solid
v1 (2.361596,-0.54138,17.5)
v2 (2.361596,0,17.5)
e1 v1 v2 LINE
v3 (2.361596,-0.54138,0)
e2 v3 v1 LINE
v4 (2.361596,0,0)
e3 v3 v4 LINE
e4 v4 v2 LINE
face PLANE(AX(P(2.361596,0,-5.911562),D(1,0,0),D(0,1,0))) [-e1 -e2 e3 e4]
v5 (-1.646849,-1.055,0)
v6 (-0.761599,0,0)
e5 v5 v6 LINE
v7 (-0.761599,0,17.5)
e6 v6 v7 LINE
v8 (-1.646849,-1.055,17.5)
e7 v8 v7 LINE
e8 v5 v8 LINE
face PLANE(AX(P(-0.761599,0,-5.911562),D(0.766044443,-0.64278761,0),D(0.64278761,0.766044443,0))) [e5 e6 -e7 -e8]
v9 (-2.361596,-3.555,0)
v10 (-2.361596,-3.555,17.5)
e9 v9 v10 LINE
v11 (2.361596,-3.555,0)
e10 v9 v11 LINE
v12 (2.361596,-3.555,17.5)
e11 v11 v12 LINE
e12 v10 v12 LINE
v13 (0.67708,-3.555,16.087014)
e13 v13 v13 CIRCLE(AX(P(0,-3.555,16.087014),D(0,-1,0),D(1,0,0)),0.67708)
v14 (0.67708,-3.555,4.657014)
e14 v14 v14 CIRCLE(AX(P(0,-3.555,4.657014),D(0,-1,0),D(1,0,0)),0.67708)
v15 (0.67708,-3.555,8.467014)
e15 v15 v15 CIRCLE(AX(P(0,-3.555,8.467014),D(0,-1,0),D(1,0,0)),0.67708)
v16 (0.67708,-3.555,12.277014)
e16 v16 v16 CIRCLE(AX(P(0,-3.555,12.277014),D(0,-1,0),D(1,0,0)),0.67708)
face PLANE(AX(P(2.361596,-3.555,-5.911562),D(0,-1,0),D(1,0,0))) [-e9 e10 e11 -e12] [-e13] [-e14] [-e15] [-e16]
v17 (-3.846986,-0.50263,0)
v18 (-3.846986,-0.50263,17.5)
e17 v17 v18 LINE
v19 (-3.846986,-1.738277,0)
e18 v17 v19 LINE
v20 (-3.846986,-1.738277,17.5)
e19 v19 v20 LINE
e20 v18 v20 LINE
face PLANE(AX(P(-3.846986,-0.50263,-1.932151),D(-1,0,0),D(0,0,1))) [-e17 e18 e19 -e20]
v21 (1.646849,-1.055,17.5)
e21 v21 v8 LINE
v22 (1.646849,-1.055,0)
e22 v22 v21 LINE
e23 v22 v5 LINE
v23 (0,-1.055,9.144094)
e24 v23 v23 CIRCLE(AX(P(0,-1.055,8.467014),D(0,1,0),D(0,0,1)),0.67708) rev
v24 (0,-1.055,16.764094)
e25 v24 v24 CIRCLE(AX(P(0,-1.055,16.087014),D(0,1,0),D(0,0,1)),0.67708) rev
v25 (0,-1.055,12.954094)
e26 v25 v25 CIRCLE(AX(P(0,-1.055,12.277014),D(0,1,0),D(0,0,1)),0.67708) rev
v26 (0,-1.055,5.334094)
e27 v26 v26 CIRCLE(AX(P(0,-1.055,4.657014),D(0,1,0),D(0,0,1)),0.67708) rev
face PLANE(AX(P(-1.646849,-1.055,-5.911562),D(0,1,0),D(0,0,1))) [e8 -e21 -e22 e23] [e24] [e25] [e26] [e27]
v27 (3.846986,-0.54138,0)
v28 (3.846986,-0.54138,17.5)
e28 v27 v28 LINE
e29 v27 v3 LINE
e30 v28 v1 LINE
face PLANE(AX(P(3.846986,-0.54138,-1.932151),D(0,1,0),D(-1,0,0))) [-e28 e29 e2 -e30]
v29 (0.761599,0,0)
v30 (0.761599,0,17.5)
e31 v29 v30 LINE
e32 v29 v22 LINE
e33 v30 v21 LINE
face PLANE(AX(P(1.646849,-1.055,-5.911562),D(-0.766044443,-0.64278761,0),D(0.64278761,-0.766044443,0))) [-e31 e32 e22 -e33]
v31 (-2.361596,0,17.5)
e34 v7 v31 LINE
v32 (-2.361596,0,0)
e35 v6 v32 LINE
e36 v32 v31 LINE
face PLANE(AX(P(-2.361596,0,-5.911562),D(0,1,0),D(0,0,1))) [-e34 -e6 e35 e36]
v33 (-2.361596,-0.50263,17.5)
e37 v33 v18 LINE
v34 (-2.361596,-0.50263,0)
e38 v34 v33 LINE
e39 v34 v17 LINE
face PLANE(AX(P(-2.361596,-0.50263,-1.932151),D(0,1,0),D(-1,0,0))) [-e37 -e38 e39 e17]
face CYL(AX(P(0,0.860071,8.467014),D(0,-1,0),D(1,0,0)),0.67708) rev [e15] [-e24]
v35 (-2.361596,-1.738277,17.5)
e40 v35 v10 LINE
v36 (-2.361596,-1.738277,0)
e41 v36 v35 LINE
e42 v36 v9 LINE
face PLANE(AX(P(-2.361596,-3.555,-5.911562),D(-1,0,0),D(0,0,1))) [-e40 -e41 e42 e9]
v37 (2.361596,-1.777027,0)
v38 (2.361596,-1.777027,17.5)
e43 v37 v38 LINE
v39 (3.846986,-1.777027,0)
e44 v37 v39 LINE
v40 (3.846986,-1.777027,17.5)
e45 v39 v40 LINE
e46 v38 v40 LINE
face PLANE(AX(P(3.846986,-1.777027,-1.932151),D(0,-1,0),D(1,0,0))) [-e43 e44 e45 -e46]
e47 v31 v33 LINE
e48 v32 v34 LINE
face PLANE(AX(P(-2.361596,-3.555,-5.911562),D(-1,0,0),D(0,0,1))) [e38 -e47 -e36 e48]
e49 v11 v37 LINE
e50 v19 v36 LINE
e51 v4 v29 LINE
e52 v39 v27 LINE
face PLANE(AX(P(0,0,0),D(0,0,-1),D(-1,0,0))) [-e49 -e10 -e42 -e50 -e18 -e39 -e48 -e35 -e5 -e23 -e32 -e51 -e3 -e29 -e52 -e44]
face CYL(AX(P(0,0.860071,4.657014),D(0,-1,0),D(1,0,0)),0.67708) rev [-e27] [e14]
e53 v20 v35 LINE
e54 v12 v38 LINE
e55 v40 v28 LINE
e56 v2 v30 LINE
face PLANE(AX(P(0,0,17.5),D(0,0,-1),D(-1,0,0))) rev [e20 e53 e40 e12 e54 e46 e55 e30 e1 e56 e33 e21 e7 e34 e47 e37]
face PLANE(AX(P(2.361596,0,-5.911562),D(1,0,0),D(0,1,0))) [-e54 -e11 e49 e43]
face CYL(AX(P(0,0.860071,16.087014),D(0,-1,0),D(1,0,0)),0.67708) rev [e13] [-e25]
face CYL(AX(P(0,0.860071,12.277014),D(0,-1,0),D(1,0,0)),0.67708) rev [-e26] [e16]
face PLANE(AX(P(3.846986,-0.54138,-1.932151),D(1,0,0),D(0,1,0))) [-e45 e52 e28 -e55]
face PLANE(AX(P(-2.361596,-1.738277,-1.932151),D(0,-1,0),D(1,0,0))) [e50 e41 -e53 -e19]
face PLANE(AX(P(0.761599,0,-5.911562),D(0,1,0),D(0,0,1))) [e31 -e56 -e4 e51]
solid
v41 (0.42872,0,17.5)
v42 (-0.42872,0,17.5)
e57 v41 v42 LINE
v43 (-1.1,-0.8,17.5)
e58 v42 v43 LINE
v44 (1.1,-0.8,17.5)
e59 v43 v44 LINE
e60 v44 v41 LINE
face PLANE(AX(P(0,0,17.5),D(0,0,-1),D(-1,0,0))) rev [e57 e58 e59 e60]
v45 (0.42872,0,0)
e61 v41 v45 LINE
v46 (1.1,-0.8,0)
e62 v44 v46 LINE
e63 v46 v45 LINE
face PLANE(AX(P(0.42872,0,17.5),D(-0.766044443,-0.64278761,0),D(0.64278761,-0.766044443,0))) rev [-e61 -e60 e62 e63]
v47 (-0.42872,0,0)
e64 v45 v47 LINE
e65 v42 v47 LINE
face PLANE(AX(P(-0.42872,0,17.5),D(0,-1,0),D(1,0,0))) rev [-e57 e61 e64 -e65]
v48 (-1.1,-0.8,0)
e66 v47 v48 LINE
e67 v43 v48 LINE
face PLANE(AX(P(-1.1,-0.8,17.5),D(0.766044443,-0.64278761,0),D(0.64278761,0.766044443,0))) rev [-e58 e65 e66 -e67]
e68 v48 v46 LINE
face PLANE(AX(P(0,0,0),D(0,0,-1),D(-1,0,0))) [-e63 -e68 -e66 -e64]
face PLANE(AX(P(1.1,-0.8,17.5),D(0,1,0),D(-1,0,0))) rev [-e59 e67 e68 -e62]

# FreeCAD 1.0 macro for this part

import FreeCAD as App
import Part
import Sketcher
Q = App.Units.Quantity


def add_polygon(sketch, points):
    """Adds a closed chain of lines whose ends are joined by coincident constraints."""
    first, n = sketch.GeometryCount, len(points)
    for a, b in zip(points, points[1:] + points[:1]):
        sketch.addGeometry(Part.LineSegment(App.Vector(*a, 0), App.Vector(*b, 0)), False)
    for i in range(n):
        sketch.addConstraint(Sketcher.Constraint("Coincident", first + i, 2, first + (i + 1) % n, 1))

doc = App.newDocument("Part")
body = doc.addObject("PartDesign::Body", "Body")

sketch1 = body.newObject("Sketcher::SketchObject", "Sketch")
sketch1.AttachmentSupport = (doc.getObject("XY_Plane"), [""])
sketch1.MapMode = "FlatFace"
add_polygon(sketch1, [(0.4, 0), (-0.4, 0), (-1.1, -0.8), (1.1, -0.8)])
sketch1.addConstraint([
    Sketcher.Constraint("Horizontal", 0),
    Sketcher.Constraint("Horizontal", 2),
    Sketcher.Constraint("Symmetric", 0, 2, 3, 2, -1, 1),
    Sketcher.Constraint("Equal", 1, 3),
    Sketcher.Constraint("Angle", 1, Q("-130 deg")),
    Sketcher.Constraint("DistanceX", 2, 1, 2, 2, Q("2.2 mm")),
    Sketcher.Constraint("DistanceY", 1, 2, -1, 1, Q("0.8 mm")),
])
pad1 = body.newObject("PartDesign::Pad", "Pad")
pad1.Profile = sketch1
pad1.Length = 17.5
body2 = doc.addObject("PartDesign::Body", "Body001")

sketch2 = body2.newObject("Sketcher::SketchObject", "Sketch001")
sketch2.AttachmentSupport = (doc.getObject("XY_Plane001"), [""])
sketch2.MapMode = "FlatFace"
sketch2.AttachmentOffset = App.Placement(App.Vector(0, 0, 17.5), App.Rotation())
add_polygon(sketch2, [(-1.6, -1.1), (-0.8, 0), (-2.4, 0), (-2.4, -3.6), (2.4, -3.6), (2.4, 0), (0.8, 0), (1.6, -1.1)])
sketch2.addConstraint([
    Sketcher.Constraint("Horizontal", 1),
    Sketcher.Constraint("Vertical", 2),
    Sketcher.Constraint("Horizontal", 3),
    Sketcher.Constraint("Vertical", 4),
    Sketcher.Constraint("Horizontal", 5),
    Sketcher.Constraint("Horizontal", 7),
    Sketcher.Constraint("Symmetric", 1, 2, 4, 2, -1, 1),
    Sketcher.Constraint("Symmetric", 0, 2, 5, 2, -2),
    Sketcher.Constraint("Equal", 0, 6),
    Sketcher.Constraint("Angle", 0, Q("50 deg")),
    Sketcher.Constraint("DistanceY", 3, 2, 6, 2, Q("2.5 mm")),
    Sketcher.Constraint("DistanceY", 2, 2, 2, 1, Q("3.555 mm")),
    Sketcher.Constraint("DistanceX", 7, 2, 7, 1, Q("3.293699 mm")),
    Sketcher.Constraint("DistanceX", 3, 1, 3, 2, Q("4.723192 mm")),
])
pad2 = body2.newObject("PartDesign::Pad", "Pad001")
pad2.Profile = sketch2
pad2.Length = 17.5
pad2.Reversed = True

sketch3 = body2.newObject("Sketcher::SketchObject", "Sketch002")
sketch3.AttachmentSupport = (doc.getObject("XY_Plane001"), [""])
sketch3.MapMode = "FlatFace"
sketch3.AttachmentOffset = App.Placement(App.Vector(0, 0, 17.5), App.Rotation())
add_polygon(sketch3, [(-3.8, -0.5), (-3.8, -1.7), (-2.4, -1.7), (-2.4, -0.5)])
add_polygon(sketch3, [(2.4, -0.5), (2.4, -1.8), (3.8, -1.8), (3.8, -0.5)])
sketch3.addConstraint([
    Sketcher.Constraint("Vertical", 0),
    Sketcher.Constraint("Horizontal", 1),
    Sketcher.Constraint("Vertical", 2),
    Sketcher.Constraint("Horizontal", 3),
    Sketcher.Constraint("Vertical", 4),
    Sketcher.Constraint("Horizontal", 5),
    Sketcher.Constraint("Vertical", 6),
    Sketcher.Constraint("Horizontal", 7),
    Sketcher.Constraint("Equal", 3, 5),
    Sketcher.Constraint("Equal", 2, 4),
    Sketcher.Constraint("DistanceX", 1, 1, 1, 2, Q("1.48539 mm")),
    Sketcher.Constraint("DistanceY", 0, 2, 0, 1, Q("1.235647 mm")),
    Sketcher.Constraint("DistanceY", 2, 2, -1, 1, Q("0.50263 mm")),
    Sketcher.Constraint("DistanceY", 6, 2, -1, 1, Q("0.54138 mm")),
    Sketcher.Constraint("DistanceX", 1, 2, 4, 2, Q("4.723192 mm")),
    Sketcher.Constraint("DistanceX", 0, 2, -1, 1, Q("3.846986 mm")),
])
pad3 = body2.newObject("PartDesign::Pad", "Pad002")
pad3.Profile = sketch3
pad3.Length = 17.5
pad3.Reversed = True

sketch4 = body2.newObject("Sketcher::SketchObject", "Sketch003")
sketch4.AttachmentSupport = (doc.getObject("XZ_Plane001"), [""])
sketch4.MapMode = "FlatFace"
sketch4.AttachmentOffset = App.Placement(App.Vector(0, 0, 3.555), App.Rotation())
sketch4.addGeometry([
    Part.Circle(App.Vector(0, 16.1, 0), App.Vector(0, 0, 1), 0.7),
    Part.Circle(App.Vector(0, 12.3, 0), App.Vector(0, 0, 1), 0.7),
    Part.Circle(App.Vector(0, 8.5, 0), App.Vector(0, 0, 1), 0.7),
    Part.Circle(App.Vector(0, 4.7, 0), App.Vector(0, 0, 1), 0.7),
], False)
sketch4.addConstraint([
    Sketcher.Constraint("Equal", 0, 1),
    Sketcher.Constraint("Equal", 1, 2),
    Sketcher.Constraint("Equal", 2, 3),
    Sketcher.Constraint("PointOnObject", 0, 3, -2),
    Sketcher.Constraint("PointOnObject", 1, 3, -2),
    Sketcher.Constraint("PointOnObject", 2, 3, -2),
    Sketcher.Constraint("PointOnObject", 3, 3, -2),
    Sketcher.Constraint("Diameter", 0, Q("1.35416 mm")),
    Sketcher.Constraint("DistanceY", 1, 3, 0, 3, Q("3.81 mm")),
    Sketcher.Constraint("DistanceY", 2, 3, 1, 3, Q("3.81 mm")),
    Sketcher.Constraint("DistanceY", 3, 3, 2, 3, Q("3.81 mm")),
    Sketcher.Constraint("DistanceY", -1, 1, 0, 3, Q("16.087014 mm")),
])
pocket1 = body2.newObject("PartDesign::Pocket", "Pocket")
pocket1.Profile = sketch4
pocket1.Length = 2.5

doc.recompute()
